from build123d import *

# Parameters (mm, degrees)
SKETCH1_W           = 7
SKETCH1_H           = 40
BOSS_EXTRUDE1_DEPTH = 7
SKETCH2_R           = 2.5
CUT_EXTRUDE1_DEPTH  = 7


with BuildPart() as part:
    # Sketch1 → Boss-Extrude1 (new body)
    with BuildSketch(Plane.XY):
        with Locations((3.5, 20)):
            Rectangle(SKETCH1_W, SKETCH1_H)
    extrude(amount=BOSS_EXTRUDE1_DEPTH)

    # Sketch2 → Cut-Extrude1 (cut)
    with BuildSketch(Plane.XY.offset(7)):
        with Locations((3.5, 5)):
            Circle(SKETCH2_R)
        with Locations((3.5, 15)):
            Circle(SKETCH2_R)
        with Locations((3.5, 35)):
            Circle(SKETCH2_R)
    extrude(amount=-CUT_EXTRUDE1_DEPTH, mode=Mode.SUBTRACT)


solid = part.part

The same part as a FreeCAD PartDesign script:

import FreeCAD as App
import Part
import Sketcher
from FreeCAD import Vector


def add_polygon(sketch, points):
    """Adds a closed chain of lines whose ends are joined by coincident constraints."""
    first, n = sketch.GeometryCount, len(points)
    for a, b in zip(points, points[1:] + points[:1]):
        sketch.addGeometry(Part.LineSegment(App.Vector(*a, 0), App.Vector(*b, 0)), False)
    for i in range(n):
        sketch.addConstraint(Sketcher.Constraint("Coincident", first + i, 2, first + (i + 1) % n, 1))

doc = App.newDocument("Part")
body = doc.addObject("PartDesign::Body", "Body")

# Sketch on XY plane
sketch1 = doc.addObject("Sketcher::SketchObject", "Sketch")
body.addObject(sketch1)
sketch1.AttachmentSupport = (doc.XY_Plane, [""])
sketch1.MapMode = "FlatFace"
add_polygon(sketch1, [(0, 40), (0, 0), (7, 0), (7, 40)])  # lines 0-3
sketch1.addConstraint([
    Sketcher.Constraint("Vertical", 0),
    Sketcher.Constraint("Horizontal", 1),
    Sketcher.Constraint("Vertical", 2),
    Sketcher.Constraint("Horizontal", 3),
    Sketcher.Constraint("Coincident", 0, 2, -1, 1),
    Sketcher.Constraint("DistanceX", 1, 1, 1, 2, 7.0),
    Sketcher.Constraint("DistanceY", 0, 2, 0, 1, 40.0),
])
pad1 = doc.addObject("PartDesign::Pad", "Pad")
body.addObject(pad1)
pad1.Profile = sketch1
pad1.Length = 7

# Sketch on XY plane
sketch2 = doc.addObject("Sketcher::SketchObject", "Sketch001")
body.addObject(sketch2)
sketch2.AttachmentSupport = (doc.XY_Plane, [""])
sketch2.MapMode = "FlatFace"
sketch2.AttachmentOffset = App.Placement(Vector(0, 0, 7), App.Rotation())
sketch2.addGeometry([
    Part.Circle(Vector(3.5, 5, 0), Vector(0, 0, 1), 2.5),
    Part.Circle(Vector(3.5, 15, 0), Vector(0, 0, 1), 2.5),
    Part.Circle(Vector(3.5, 35, 0), Vector(0, 0, 1), 2.5),
], False)
sketch2.addConstraint([
    Sketcher.Constraint("Equal", 0, 1),
    Sketcher.Constraint("Equal", 1, 2),
    Sketcher.Constraint("Vertical", 0, 3, 1, 3),
    Sketcher.Constraint("Vertical", 1, 3, 2, 3),
    Sketcher.Constraint("Diameter", 0, 5.0),
    Sketcher.Constraint("DistanceY", -1, 1, 0, 3, 5.0),
    Sketcher.Constraint("DistanceY", -1, 1, 1, 3, 15.0),
    Sketcher.Constraint("DistanceY", -1, 1, 2, 3, 35.0),
    Sketcher.Constraint("DistanceX", -1, 1, 0, 3, 3.5),
])
pocket1 = doc.addObject("PartDesign::Pocket", "Pocket")
body.addObject(pocket1)
pocket1.Profile = sketch2
pocket1.Length = 7

doc.recompute()
